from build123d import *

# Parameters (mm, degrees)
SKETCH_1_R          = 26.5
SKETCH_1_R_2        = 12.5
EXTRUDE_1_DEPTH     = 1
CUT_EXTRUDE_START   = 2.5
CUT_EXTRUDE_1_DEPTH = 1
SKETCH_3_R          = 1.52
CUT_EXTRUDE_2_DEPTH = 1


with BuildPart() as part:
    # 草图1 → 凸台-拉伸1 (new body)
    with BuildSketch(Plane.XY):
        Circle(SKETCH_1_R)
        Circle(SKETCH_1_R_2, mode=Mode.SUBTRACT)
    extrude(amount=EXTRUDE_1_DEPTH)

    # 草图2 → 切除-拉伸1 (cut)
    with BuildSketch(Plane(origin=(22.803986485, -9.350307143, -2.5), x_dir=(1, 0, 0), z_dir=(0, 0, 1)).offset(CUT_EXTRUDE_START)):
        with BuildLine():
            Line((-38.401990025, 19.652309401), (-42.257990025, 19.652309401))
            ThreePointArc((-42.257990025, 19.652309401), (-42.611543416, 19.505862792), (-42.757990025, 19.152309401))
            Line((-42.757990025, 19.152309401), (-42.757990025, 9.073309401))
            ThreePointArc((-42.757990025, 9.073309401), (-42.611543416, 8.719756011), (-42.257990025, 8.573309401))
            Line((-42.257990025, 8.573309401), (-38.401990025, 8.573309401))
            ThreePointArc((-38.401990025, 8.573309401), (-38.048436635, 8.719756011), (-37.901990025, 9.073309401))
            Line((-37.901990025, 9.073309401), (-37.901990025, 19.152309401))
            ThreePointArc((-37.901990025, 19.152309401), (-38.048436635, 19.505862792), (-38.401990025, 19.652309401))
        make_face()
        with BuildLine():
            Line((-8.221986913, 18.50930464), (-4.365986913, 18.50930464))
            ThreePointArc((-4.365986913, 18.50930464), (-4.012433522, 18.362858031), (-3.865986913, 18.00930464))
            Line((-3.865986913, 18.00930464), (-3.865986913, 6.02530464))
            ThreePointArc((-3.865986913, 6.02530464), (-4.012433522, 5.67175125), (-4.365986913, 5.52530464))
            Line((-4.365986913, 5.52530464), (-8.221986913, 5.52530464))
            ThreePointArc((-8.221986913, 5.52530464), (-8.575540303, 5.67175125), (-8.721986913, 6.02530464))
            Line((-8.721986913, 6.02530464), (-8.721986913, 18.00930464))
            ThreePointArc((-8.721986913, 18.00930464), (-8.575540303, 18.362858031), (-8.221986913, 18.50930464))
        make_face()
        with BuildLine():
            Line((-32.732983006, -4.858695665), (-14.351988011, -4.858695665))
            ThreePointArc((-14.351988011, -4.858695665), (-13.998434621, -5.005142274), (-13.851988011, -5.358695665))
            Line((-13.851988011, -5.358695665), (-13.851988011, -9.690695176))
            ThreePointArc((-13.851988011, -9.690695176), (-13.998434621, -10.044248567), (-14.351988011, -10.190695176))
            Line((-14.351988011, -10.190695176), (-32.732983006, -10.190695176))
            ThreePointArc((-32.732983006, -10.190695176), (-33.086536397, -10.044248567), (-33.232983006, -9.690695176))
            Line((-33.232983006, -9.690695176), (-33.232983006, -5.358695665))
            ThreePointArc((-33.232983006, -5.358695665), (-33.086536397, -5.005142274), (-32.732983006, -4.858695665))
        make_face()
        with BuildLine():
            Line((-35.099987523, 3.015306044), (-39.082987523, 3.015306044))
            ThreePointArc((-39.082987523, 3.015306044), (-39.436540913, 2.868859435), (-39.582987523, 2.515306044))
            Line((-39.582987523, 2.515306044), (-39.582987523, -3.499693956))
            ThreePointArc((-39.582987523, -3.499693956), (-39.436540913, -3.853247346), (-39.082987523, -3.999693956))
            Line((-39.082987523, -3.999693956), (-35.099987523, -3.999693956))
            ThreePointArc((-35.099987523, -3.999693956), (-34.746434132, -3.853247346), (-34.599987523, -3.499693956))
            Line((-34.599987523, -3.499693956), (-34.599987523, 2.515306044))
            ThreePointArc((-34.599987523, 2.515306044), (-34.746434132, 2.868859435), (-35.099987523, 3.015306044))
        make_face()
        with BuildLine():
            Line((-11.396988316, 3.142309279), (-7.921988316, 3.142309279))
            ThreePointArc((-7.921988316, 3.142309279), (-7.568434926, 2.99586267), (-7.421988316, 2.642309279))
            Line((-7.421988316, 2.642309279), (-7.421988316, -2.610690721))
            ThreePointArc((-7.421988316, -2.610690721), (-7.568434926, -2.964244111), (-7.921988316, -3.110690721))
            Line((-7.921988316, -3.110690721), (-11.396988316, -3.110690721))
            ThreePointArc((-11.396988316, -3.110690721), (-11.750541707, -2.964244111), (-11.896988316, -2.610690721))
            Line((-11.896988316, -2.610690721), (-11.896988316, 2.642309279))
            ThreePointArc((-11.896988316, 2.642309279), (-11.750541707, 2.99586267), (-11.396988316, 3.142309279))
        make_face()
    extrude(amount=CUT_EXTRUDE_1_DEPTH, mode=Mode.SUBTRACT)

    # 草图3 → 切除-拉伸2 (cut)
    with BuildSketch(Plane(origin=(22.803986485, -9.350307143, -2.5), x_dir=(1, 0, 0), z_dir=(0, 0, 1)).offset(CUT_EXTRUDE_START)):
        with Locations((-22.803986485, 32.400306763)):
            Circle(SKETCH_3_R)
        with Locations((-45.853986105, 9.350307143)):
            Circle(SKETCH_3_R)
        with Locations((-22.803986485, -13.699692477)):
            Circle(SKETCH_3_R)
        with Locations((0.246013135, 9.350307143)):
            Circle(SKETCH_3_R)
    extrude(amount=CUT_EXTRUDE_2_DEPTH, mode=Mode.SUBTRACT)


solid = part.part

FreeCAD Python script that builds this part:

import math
import FreeCAD as App
import Part
import Sketcher

V = App.Vector

doc = App.newDocument("Part")
params = doc.addObject("Spreadsheet::Sheet", "Params")
for row, (alias, value) in enumerate([
    ("sketch1_diameter", "53 mm"),
    ("sketch1_diameter2", "25 mm"),
    ("pad1_length", "1 mm"),
    ("sketch2_radius", "0.5 mm"),
    ("pocket1_length", "1 mm"),
    ("sketch3_diameter", "3.04 mm"),
    ("pocket2_length", "1 mm"),
], start=1):
    params.set(f"A{row}", alias)
    params.set(f"B{row}", "=" + value)
    params.setAlias(f"B{row}", alias)

body = doc.addObject("PartDesign::Body", "Body")

# Sketch on XY plane
sketch1 = doc.addObject("Sketcher::SketchObject", "Sketch")
body.addObject(sketch1)
sketch1.AttachmentSupport = (doc.XY_Plane, [""])
sketch1.MapMode = "FlatFace"
sketch1.addGeometry([
    Part.Circle(V(0, 0, 0), V(0, 0, 1), 26),
    Part.Circle(V(0, 0, 0), V(0, 0, 1), 12),
], False)
sketch1.addConstraint([
    Sketcher.Constraint("Coincident", 0, 3, -1, 1),
    Sketcher.Constraint("Coincident", 1, 3, -1, 1),
    Sketcher.Constraint("Diameter", 0, 53.0),
    Sketcher.Constraint("Diameter", 1, 25.0),
])
sketch1.setExpression("Constraints[2]", "Params.sketch1_diameter")
sketch1.setExpression("Constraints[3]", "Params.sketch1_diameter2")
pad1 = doc.addObject("PartDesign::Pad", "Pad")
body.addObject(pad1)
pad1.Profile = sketch1
pad1.setExpression("Length", "Params.pad1_length")

# Sketch on XY plane
sketch2 = doc.addObject("Sketcher::SketchObject", "Sketch001")
body.addObject(sketch2)
sketch2.AttachmentSupport = (doc.XY_Plane, [""])
sketch2.MapMode = "FlatFace"
sketch2.addGeometry([
    Part.LineSegment(V(-15.6, 10.3, 0), V(-19.45, 10.3, 0)),  # 0
    Part.ArcOfCircle(Part.Circle(V(-19.45, 9.8, 0), V(0, 0, 1), 0.5), math.radians(90), math.radians(180)),  # 1
    Part.LineSegment(V(-19.95, 9.8, 0), V(-19.95, -0.28, 0)),  # 2
    Part.ArcOfCircle(Part.Circle(V(-19.45, -0.28, 0), V(0, 0, 1), 0.5), math.radians(180), math.radians(270)),  # 3
    Part.LineSegment(V(-19.45, -0.78, 0), V(-15.6, -0.78, 0)),  # 4
    Part.ArcOfCircle(Part.Circle(V(-15.6, -0.28, 0), V(0, 0, 1), 0.5), math.radians(-90), math.radians(0)),  # 5
    Part.LineSegment(V(-15.1, -0.28, 0), V(-15.1, 9.8, 0)),  # 6
    Part.ArcOfCircle(Part.Circle(V(-15.6, 9.8, 0), V(0, 0, 1), 0.5), math.radians(0), math.radians(90)),  # 7
    Part.LineSegment(V(18.44, 9.16, 0), V(14.58, 9.16, 0)),  # 8
    Part.ArcOfCircle(Part.Circle(V(14.58, 8.66, 0), V(0, 0, 1), 0.5), math.radians(90), math.radians(180)),  # 9
    Part.LineSegment(V(14.08, 8.66, 0), V(14.08, -3.33, 0)),  # 10
    Part.ArcOfCircle(Part.Circle(V(14.58, -3.33, 0), V(0, 0, 1), 0.5), math.radians(-180), math.radians(-90)),  # 11
    Part.LineSegment(V(14.58, -3.83, 0), V(18.44, -3.83, 0)),  # 12
    Part.ArcOfCircle(Part.Circle(V(18.44, -3.33, 0), V(0, 0, 1), 0.5), math.radians(-90), math.radians(0)),  # 13
    Part.LineSegment(V(18.94, -3.33, 0), V(18.94, 8.66, 0)),  # 14
    Part.ArcOfCircle(Part.Circle(V(18.44, 8.66, 0), V(0, 0, 1), 0.5), math.radians(0), math.radians(90)),  # 15
    Part.LineSegment(V(8.45, -14.21, 0), V(-9.93, -14.21, 0)),  # 16
    Part.ArcOfCircle(Part.Circle(V(-9.93, -14.71, 0), V(0, 0, 1), 0.5), math.radians(90), math.radians(180)),  # 17
    Part.LineSegment(V(-10.43, -14.71, 0), V(-10.43, -19.04, 0)),  # 18
    Part.ArcOfCircle(Part.Circle(V(-9.93, -19.04, 0), V(0, 0, 1), 0.5), math.radians(180), math.radians(270)),  # 19
    Part.LineSegment(V(-9.93, -19.54, 0), V(8.45, -19.54, 0)),  # 20
    Part.ArcOfCircle(Part.Circle(V(8.45, -19.04, 0), V(0, 0, 1), 0.5), math.radians(-90), math.radians(0)),  # 21
    Part.LineSegment(V(8.95, -19.04, 0), V(8.95, -14.71, 0)),  # 22
    Part.ArcOfCircle(Part.Circle(V(8.45, -14.71, 0), V(0, 0, 1), 0.5), math.radians(0), math.radians(90)),  # 23
    Part.LineSegment(V(-12.3, -6.34, 0), V(-16.28, -6.34, 0)),  # 24
    Part.ArcOfCircle(Part.Circle(V(-16.28, -6.84, 0), V(0, 0, 1), 0.5), math.radians(90), math.radians(180)),  # 25
    Part.LineSegment(V(-16.78, -6.84, 0), V(-16.78, -12.85, 0)),  # 26
    Part.ArcOfCircle(Part.Circle(V(-16.28, -12.85, 0), V(0, 0, 1), 0.5), math.radians(-180), math.radians(-90)),  # 27
    Part.LineSegment(V(-16.28, -13.35, 0), V(-12.3, -13.35, 0)),  # 28
    Part.ArcOfCircle(Part.Circle(V(-12.3, -12.85, 0), V(0, 0, 1), 0.5), math.radians(-90), math.radians(0)),  # 29
    Part.LineSegment(V(-11.8, -12.85, 0), V(-11.8, -6.84, 0)),  # 30
    Part.ArcOfCircle(Part.Circle(V(-12.3, -6.84, 0), V(0, 0, 1), 0.5), math.radians(0), math.radians(90)),  # 31
    Part.LineSegment(V(14.88, -6.21, 0), V(11.41, -6.21, 0)),  # 32
    Part.ArcOfCircle(Part.Circle(V(11.41, -6.71, 0), V(0, 0, 1), 0.5), math.radians(90), math.radians(180)),  # 33
    Part.LineSegment(V(10.91, -6.71, 0), V(10.91, -11.96, 0)),  # 34
    Part.ArcOfCircle(Part.Circle(V(11.41, -11.96, 0), V(0, 0, 1), 0.5), math.radians(180), math.radians(270)),  # 35
    Part.LineSegment(V(11.41, -12.46, 0), V(14.88, -12.46, 0)),  # 36
    Part.ArcOfCircle(Part.Circle(V(14.88, -11.96, 0), V(0, 0, 1), 0.5), math.radians(-90), math.radians(0)),  # 37
    Part.LineSegment(V(15.38, -11.96, 0), V(15.38, -6.71, 0)),  # 38
    Part.ArcOfCircle(Part.Circle(V(14.88, -6.71, 0), V(0, 0, 1), 0.5), math.radians(0), math.radians(90)),  # 39
], False)
sketch2.addConstraint([
    Sketcher.Constraint("Tangent", 0, 2, 1, 1),
    Sketcher.Constraint("Tangent", 1, 2, 2, 1),
    Sketcher.Constraint("Tangent", 2, 2, 3, 1),
    Sketcher.Constraint("Tangent", 3, 2, 4, 1),
    Sketcher.Constraint("Tangent", 4, 2, 5, 1),
    Sketcher.Constraint("Tangent", 5, 2, 6, 1),
    Sketcher.Constraint("Tangent", 6, 2, 7, 1),
    Sketcher.Constraint("Tangent", 7, 2, 0, 1),
    Sketcher.Constraint("Tangent", 8, 2, 9, 1),
    Sketcher.Constraint("Tangent", 9, 2, 10, 1),
    Sketcher.Constraint("Tangent", 10, 2, 11, 1),
    Sketcher.Constraint("Tangent", 11, 2, 12, 1),
    Sketcher.Constraint("Tangent", 12, 2, 13, 1),
    Sketcher.Constraint("Tangent", 13, 2, 14, 1),
    Sketcher.Constraint("Tangent", 14, 2, 15, 1),
    Sketcher.Constraint("Tangent", 15, 2, 8, 1),
    Sketcher.Constraint("Tangent", 16, 2, 17, 1),
    Sketcher.Constraint("Tangent", 17, 2, 18, 1),
    Sketcher.Constraint("Tangent", 18, 2, 19, 1),
    Sketcher.Constraint("Tangent", 19, 2, 20, 1),
    Sketcher.Constraint("Tangent", 20, 2, 21, 1),
    Sketcher.Constraint("Tangent", 21, 2, 22, 1),
    Sketcher.Constraint("Tangent", 22, 2, 23, 1),
    Sketcher.Constraint("Tangent", 23, 2, 16, 1),
    Sketcher.Constraint("Tangent", 24, 2, 25, 1),
    Sketcher.Constraint("Tangent", 25, 2, 26, 1),
    Sketcher.Constraint("Tangent", 26, 2, 27, 1),
    Sketcher.Constraint("Tangent", 27, 2, 28, 1),
    Sketcher.Constraint("Tangent", 28, 2, 29, 1),
    Sketcher.Constraint("Tangent", 29, 2, 30, 1),
    Sketcher.Constraint("Tangent", 30, 2, 31, 1),
    Sketcher.Constraint("Tangent", 31, 2, 24, 1),
    Sketcher.Constraint("Tangent", 32, 2, 33, 1),
    Sketcher.Constraint("Tangent", 33, 2, 34, 1),
    Sketcher.Constraint("Tangent", 34, 2, 35, 1),
    Sketcher.Constraint("Tangent", 35, 2, 36, 1),
    Sketcher.Constraint("Tangent", 36, 2, 37, 1),
    Sketcher.Constraint("Tangent", 37, 2, 38, 1),
    Sketcher.Constraint("Tangent", 38, 2, 39, 1),
    Sketcher.Constraint("Tangent", 39, 2, 32, 1),
    Sketcher.Constraint("Horizontal", 0),
    Sketcher.Constraint("Vertical", 2),
    Sketcher.Constraint("Horizontal", 4),
    Sketcher.Constraint("Vertical", 6),
    Sketcher.Constraint("Horizontal", 8),
    Sketcher.Constraint("Vertical", 10),
    Sketcher.Constraint("Horizontal", 12),
    Sketcher.Constraint("Vertical", 14),
    Sketcher.Constraint("Horizontal", 16),
    Sketcher.Constraint("Vertical", 18),
    Sketcher.Constraint("Horizontal", 20),
    Sketcher.Constraint("Vertical", 22),
    Sketcher.Constraint("Horizontal", 24),
    Sketcher.Constraint("Vertical", 26),
    Sketcher.Constraint("Horizontal", 28),
    Sketcher.Constraint("Vertical", 30),
    Sketcher.Constraint("Horizontal", 32),
    Sketcher.Constraint("Vertical", 34),
    Sketcher.Constraint("Horizontal", 36),
    Sketcher.Constraint("Vertical", 38),
    Sketcher.Constraint("Equal", 1, 3),
    Sketcher.Constraint("Equal", 3, 5),
    Sketcher.Constraint("Equal", 5, 7),
    Sketcher.Constraint("Equal", 7, 9),
    Sketcher.Constraint("Equal", 9, 11),
    Sketcher.Constraint("Equal", 11, 13),
    Sketcher.Constraint("Equal", 13, 15),
    Sketcher.Constraint("Equal", 15, 17),
    Sketcher.Constraint("Equal", 17, 19),
    Sketcher.Constraint("Equal", 19, 21),
    Sketcher.Constraint("Equal", 21, 23),
    Sketcher.Constraint("Equal", 23, 25),
    Sketcher.Constraint("Equal", 25, 27),
    Sketcher.Constraint("Equal", 27, 29),
    Sketcher.Constraint("Equal", 29, 31),
    Sketcher.Constraint("Equal", 31, 33),
    Sketcher.Constraint("Equal", 33, 35),
    Sketcher.Constraint("Equal", 35, 37),
    Sketcher.Constraint("Equal", 37, 39),
    Sketcher.Constraint("Equal", 4, 8),
    Sketcher.Constraint("Radius", 1, 0.5),
    Sketcher.Constraint("DistanceY", 21, 3, 9, 3, 27.7),
    Sketcher.Constraint("DistanceX", 11, 3, 37, 3, 0.299999),
    Sketcher.Constraint("DistanceX", 0, 2, 0, 1, 3.856),
    Sketcher.Constraint("DistanceX", 24, 2, 24, 1, 3.983),
    Sketcher.Constraint("DistanceX", 32, 2, 32, 1, 3.475),
    Sketcher.Constraint("DistanceY", 2, 2, 2, 1, 10.079),
    Sketcher.Constraint("DistanceY", 10, 2, 10, 1, 11.984),
    Sketcher.Constraint("DistanceY", 18, 2, 18, 1, 4.332),
    Sketcher.Constraint("DistanceY", 26, 2, 26, 1, 6.015),
    Sketcher.Constraint("DistanceY", 34, 2, 34, 1, 5.253),
    Sketcher.Constraint("DistanceY", 27, 3, -1, 1, 12.850001),
    Sketcher.Constraint("DistanceX", 21, 3, 11, 3, 6.130001),
    Sketcher.Constraint("DistanceX", -1, 1, 9, 3, 14.582),
    Sketcher.Constraint("DistanceX", 25, 3, -1, 1, 16.279001),
    Sketcher.Constraint("DistanceY", 17, 3, 25, 3, 7.874002),
    Sketcher.Constraint("DistanceX", 16, 2, 16, 1, 18.380995),
    Sketcher.Constraint("DistanceX", 1, 3, -1, 1, 19.454004),
    Sketcher.Constraint("DistanceY", -1, 1, 1, 3, 9.802002),
    Sketcher.Constraint("DistanceY", 33, 3, -1, 1, 6.707998),
])
sketch2.setExpression("Constraints[80]", "Params.sketch2_radius")
pocket1 = doc.addObject("PartDesign::Pocket", "Pocket")
body.addObject(pocket1)
pocket1.Profile = sketch2
pocket1.setExpression("Length", "Params.pocket1_length")
pocket1.Reversed = True

# Sketch on XY plane
sketch3 = doc.addObject("Sketcher::SketchObject", "Sketch002")
body.addObject(sketch3)
sketch3.AttachmentSupport = (doc.XY_Plane, [""])
sketch3.MapMode = "FlatFace"
sketch3.addGeometry([
    Part.Circle(V(0, 23, 0), V(0, 0, 1), 1.5),
    Part.Circle(V(-23, 0, 0), V(0, 0, 1), 1.5),
    Part.Circle(V(0, -23, 0), V(0, 0, 1), 1.5),
    Part.Circle(V(23, 0, 0), V(0, 0, 1), 1.5),
], False)
sketch3.addConstraint([
    Sketcher.Constraint("Equal", 0, 1),
    Sketcher.Constraint("Equal", 1, 2),
    Sketcher.Constraint("Equal", 2, 3),
    Sketcher.Constraint("Symmetric", 0, 3, 2, 3, -1, 1),
    Sketcher.Constraint("Symmetric", 1, 3, 3, 3, -1, 1),
    Sketcher.Constraint("PointOnObject", 0, 3, -2),
    Sketcher.Constraint("PointOnObject", 1, 3, -1),
    Sketcher.Constraint("Diameter", 0, 3.04),
    Sketcher.Constraint("DistanceY", 2, 3, 0, 3, 46.099999),
    Sketcher.Constraint("DistanceX", 1, 3, 3, 3, 46.099999),
])
sketch3.setExpression("Constraints[7]", "Params.sketch3_diameter")
pocket2 = doc.addObject("PartDesign::Pocket", "Pocket001")
body.addObject(pocket2)
pocket2.Profile = sketch3
pocket2.setExpression("Length", "Params.pocket2_length")
pocket2.Reversed = True

doc.recompute()
